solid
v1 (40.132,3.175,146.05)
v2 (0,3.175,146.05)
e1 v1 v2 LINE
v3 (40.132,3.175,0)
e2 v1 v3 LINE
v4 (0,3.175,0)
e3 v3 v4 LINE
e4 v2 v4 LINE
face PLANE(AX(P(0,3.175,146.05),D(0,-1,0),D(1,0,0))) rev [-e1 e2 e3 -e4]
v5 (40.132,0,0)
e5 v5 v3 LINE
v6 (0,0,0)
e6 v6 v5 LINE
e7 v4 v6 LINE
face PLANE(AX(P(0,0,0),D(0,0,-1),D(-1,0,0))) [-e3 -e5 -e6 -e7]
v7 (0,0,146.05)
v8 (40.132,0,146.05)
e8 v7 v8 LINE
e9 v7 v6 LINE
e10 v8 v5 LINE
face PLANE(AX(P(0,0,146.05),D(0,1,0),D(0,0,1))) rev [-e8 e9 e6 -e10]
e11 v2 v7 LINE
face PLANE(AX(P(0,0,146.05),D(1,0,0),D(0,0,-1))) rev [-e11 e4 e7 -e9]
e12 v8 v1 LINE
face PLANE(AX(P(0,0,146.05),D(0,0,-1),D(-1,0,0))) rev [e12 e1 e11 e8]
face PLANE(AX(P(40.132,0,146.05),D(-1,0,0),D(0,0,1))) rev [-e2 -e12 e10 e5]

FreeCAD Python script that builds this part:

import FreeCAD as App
import Part
import Sketcher
from FreeCAD import Vector
Q = App.Units.Quantity


def add_polygon(sketch, points):
    """Adds a closed chain of lines whose ends are joined by coincident constraints."""
    first, n = sketch.GeometryCount, len(points)
    for a, b in zip(points, points[1:] + points[:1]):
        sketch.addGeometry(Part.LineSegment(App.Vector(*a, 0), App.Vector(*b, 0)), False)
    for i in range(n):
        sketch.addConstraint(Sketcher.Constraint("Coincident", first + i, 2, first + (i + 1) % n, 1))

doc = App.newDocument("Part")
body = doc.addObject("PartDesign::Body", "Body")

# Sketch on XY plane
sketch1 = doc.addObject("Sketcher::SketchObject", "Sketch")
body.addObject(sketch1)
sketch1.AttachmentSupport = (doc.XY_Plane, [""])
sketch1.MapMode = "FlatFace"
add_polygon(sketch1, [(0, 3.2), (0, 0), (40.1, 0), (40.1, 3.2)])  # lines 0-3
sketch1.addConstraint([
    Sketcher.Constraint("Vertical", 0),
    Sketcher.Constraint("Horizontal", 1),
    Sketcher.Constraint("Vertical", 2),
    Sketcher.Constraint("Horizontal", 3),
    Sketcher.Constraint("Coincident", 0, 2, -1, 1),
    Sketcher.Constraint("DistanceX", 1, 1, 1, 2, Q("1.58 in")),
    Sketcher.Constraint("DistanceY", 0, 2, 0, 1, Q("0.125 in")),
])
pad1 = doc.addObject("PartDesign::Pad", "Pad")
body.addObject(pad1)
pad1.Profile = sketch1
pad1.Length = Q("5.75 in")

doc.recompute()
